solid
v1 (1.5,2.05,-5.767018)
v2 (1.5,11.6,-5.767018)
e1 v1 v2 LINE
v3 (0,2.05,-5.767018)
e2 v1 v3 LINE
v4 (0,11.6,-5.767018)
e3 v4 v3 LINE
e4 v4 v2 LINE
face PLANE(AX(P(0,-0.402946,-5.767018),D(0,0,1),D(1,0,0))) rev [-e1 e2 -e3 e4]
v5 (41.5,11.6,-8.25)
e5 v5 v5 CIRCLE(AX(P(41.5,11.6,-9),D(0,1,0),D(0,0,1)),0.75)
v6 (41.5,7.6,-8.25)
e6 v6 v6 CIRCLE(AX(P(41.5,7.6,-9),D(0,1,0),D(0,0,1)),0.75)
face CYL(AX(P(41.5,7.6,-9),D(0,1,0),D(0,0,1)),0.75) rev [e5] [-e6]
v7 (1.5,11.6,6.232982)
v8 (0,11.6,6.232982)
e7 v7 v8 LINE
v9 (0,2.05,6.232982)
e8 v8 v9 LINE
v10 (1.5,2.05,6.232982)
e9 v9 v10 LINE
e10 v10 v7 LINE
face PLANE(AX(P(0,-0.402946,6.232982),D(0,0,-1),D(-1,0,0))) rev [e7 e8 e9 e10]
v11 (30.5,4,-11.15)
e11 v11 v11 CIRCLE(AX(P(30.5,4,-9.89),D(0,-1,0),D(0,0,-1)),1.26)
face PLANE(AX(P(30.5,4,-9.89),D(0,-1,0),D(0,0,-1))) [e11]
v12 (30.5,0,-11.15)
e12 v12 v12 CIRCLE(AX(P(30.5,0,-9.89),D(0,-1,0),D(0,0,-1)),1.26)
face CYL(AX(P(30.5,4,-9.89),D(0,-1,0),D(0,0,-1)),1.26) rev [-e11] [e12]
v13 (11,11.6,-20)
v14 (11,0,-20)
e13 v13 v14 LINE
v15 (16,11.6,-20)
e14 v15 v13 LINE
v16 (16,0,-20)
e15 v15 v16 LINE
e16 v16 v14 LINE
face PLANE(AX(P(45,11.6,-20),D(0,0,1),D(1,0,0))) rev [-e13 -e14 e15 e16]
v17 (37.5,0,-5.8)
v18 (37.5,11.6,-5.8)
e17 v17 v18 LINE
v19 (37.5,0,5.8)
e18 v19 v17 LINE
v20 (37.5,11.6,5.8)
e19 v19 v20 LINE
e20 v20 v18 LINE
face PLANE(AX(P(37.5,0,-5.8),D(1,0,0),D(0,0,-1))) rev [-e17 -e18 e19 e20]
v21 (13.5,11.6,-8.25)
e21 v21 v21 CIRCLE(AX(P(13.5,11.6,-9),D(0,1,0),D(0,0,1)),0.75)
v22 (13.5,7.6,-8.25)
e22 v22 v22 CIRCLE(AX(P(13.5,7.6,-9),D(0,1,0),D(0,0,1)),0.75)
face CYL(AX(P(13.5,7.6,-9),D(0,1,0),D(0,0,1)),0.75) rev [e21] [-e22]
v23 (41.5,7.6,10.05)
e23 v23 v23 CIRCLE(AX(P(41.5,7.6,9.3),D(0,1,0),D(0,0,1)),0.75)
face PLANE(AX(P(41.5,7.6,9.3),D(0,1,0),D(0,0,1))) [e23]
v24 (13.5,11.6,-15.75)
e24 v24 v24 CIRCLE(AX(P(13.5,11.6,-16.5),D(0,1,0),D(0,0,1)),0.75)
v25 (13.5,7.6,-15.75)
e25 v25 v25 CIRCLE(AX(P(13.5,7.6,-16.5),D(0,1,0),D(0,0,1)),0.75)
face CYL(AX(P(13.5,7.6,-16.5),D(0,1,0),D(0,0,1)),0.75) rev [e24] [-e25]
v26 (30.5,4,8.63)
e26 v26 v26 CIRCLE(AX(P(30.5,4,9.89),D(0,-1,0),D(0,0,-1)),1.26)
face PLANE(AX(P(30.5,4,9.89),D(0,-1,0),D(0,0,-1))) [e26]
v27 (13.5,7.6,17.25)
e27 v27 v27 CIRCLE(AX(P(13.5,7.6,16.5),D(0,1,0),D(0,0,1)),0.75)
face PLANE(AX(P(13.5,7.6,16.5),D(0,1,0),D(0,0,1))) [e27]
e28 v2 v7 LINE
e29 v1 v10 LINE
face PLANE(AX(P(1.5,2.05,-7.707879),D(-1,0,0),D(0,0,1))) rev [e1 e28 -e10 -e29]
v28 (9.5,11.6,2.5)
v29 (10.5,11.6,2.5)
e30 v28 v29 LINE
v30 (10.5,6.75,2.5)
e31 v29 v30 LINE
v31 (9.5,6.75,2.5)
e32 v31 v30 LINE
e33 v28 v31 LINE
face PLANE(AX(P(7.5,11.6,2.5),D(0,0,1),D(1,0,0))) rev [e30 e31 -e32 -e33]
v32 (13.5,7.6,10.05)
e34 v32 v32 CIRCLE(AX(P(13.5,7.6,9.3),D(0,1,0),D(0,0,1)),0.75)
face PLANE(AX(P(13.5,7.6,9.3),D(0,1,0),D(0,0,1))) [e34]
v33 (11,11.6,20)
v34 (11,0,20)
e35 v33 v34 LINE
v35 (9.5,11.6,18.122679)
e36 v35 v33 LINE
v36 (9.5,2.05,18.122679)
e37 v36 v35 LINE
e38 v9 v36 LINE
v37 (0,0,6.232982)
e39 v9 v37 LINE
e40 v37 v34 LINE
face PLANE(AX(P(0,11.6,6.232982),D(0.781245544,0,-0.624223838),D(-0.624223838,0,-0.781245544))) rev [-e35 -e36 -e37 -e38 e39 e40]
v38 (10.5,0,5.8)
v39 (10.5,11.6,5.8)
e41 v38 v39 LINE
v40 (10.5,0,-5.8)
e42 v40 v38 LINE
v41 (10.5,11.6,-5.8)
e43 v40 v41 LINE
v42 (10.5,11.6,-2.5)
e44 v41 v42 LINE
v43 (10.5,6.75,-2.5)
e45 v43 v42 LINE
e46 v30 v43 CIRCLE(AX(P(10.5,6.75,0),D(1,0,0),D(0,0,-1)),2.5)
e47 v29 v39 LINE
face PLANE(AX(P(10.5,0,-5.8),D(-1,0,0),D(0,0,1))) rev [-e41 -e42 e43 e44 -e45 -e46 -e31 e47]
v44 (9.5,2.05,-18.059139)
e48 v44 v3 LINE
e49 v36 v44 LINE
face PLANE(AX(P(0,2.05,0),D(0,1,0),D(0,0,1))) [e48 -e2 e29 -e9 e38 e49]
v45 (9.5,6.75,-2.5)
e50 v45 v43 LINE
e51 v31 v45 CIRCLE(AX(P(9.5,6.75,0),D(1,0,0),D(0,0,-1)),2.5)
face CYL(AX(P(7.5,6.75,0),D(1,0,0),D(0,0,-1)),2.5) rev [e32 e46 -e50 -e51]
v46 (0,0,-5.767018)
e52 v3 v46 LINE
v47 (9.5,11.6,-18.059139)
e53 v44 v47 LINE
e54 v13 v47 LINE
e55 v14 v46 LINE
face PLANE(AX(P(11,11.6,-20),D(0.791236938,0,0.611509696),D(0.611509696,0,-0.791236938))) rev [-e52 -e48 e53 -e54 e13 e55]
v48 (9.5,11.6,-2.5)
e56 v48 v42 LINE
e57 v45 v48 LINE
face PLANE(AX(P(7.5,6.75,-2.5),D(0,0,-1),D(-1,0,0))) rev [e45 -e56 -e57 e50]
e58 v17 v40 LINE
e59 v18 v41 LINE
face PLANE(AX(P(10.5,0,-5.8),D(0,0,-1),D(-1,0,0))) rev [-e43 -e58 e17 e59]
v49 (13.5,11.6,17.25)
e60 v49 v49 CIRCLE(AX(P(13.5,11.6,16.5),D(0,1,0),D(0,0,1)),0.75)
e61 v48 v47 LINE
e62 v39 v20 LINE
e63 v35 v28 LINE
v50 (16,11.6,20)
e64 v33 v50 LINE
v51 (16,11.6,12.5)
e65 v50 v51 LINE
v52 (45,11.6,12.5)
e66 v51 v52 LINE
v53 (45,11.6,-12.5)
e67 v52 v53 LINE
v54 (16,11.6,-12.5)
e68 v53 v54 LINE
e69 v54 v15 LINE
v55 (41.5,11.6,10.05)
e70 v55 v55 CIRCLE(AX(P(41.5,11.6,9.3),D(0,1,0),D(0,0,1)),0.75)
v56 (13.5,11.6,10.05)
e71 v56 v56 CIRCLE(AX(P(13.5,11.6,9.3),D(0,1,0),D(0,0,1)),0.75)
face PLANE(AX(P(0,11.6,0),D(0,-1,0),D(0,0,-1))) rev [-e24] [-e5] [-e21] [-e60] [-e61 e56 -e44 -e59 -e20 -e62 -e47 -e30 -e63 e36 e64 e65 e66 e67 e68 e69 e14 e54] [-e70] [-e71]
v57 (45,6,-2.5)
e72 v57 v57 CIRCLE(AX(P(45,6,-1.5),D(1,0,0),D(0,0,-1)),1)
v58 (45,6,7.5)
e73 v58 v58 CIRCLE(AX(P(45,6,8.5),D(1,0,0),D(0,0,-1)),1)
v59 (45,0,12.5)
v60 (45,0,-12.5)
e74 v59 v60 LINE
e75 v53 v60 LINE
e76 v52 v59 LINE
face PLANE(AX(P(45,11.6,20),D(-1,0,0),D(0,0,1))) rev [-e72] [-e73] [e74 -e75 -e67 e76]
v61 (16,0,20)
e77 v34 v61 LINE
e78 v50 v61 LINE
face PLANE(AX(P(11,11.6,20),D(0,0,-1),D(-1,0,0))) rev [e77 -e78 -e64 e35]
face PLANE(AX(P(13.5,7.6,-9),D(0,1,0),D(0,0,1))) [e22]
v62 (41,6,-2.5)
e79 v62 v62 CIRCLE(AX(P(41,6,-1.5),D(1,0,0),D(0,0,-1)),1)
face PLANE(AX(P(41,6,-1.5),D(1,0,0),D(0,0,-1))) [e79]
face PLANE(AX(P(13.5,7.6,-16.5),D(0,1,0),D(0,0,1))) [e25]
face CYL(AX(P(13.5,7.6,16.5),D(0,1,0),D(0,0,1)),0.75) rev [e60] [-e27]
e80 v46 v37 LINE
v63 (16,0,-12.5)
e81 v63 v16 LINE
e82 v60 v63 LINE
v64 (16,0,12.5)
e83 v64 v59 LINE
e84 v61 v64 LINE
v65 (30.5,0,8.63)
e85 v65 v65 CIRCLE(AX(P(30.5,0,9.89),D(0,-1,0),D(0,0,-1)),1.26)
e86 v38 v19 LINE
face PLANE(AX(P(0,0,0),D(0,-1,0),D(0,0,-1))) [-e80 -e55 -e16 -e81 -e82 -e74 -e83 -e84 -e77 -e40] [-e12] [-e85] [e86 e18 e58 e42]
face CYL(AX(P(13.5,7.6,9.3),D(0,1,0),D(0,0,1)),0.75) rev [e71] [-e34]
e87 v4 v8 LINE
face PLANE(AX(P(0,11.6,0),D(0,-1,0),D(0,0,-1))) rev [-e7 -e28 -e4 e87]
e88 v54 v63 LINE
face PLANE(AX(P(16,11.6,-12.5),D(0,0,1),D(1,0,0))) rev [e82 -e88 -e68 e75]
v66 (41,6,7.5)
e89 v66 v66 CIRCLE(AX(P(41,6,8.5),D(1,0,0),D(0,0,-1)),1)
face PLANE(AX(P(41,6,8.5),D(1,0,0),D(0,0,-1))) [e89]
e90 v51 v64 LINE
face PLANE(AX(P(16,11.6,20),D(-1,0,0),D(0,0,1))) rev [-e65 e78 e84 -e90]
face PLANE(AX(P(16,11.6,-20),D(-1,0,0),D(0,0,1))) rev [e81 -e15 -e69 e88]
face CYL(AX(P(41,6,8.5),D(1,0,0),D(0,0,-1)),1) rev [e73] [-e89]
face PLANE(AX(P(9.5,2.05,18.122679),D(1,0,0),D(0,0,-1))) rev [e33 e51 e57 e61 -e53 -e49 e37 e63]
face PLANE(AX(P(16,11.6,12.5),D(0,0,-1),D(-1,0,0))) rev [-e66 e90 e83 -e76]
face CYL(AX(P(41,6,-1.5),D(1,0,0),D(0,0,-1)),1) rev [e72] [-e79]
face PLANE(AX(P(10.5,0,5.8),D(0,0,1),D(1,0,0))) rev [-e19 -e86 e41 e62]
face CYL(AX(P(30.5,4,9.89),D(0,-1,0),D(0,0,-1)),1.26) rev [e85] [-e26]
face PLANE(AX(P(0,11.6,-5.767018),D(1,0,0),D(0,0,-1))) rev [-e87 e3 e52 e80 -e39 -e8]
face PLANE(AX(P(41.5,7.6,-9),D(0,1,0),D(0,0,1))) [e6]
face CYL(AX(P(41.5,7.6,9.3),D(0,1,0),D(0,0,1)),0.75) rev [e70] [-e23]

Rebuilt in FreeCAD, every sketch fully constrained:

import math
import FreeCAD as App
import Part
import Sketcher
from FreeCAD import Vector

doc = App.newDocument("Part")
body = doc.addObject("PartDesign::Body", "Body")

# Sketch on XZ plane
sketch1 = body.newObject("Sketcher::SketchObject", "Sketch")
sketch1.AttachmentSupport = (doc.getObject("XZ_Plane"), [""])
sketch1.MapMode = "FlatFace"
sketch1.addGeometry(Part.LineSegment(Vector(0, -5.767018, 0), Vector(0, 6.232982, 0)), False)
sketch1.addGeometry(Part.LineSegment(Vector(0, 6.232982, 0), Vector(11, 20, 0)), False)
sketch1.addGeometry(Part.LineSegment(Vector(11, 20, 0), Vector(45, 20, 0)), False)
sketch1.addGeometry(Part.LineSegment(Vector(45, 20, 0), Vector(45, -20, 0)), False)
sketch1.addGeometry(Part.LineSegment(Vector(45, -20, 0), Vector(11, -20, 0)), False)
sketch1.addGeometry(Part.LineSegment(Vector(11, -20, 0), Vector(0, -5.767018, 0)), False)
sketch1.addConstraint(Sketcher.Constraint("Coincident", 0, 2, 1, 1))
sketch1.addConstraint(Sketcher.Constraint("Coincident", 1, 2, 2, 1))
sketch1.addConstraint(Sketcher.Constraint("Coincident", 2, 2, 3, 1))
sketch1.addConstraint(Sketcher.Constraint("Coincident", 3, 2, 4, 1))
sketch1.addConstraint(Sketcher.Constraint("Coincident", 4, 2, 5, 1))
sketch1.addConstraint(Sketcher.Constraint("Coincident", 5, 2, 0, 1))
sketch1.addConstraint(Sketcher.Constraint("Vertical", 0))
sketch1.addConstraint(Sketcher.Constraint("Horizontal", 2))
sketch1.addConstraint(Sketcher.Constraint("Vertical", 3))
sketch1.addConstraint(Sketcher.Constraint("Horizontal", 4))
sketch1.addConstraint(Sketcher.Constraint("Symmetric", 1, 2, 4, 2, -1))
sketch1.addConstraint(Sketcher.Constraint("PointOnObject", 0, 2, -2))
sketch1.addConstraint(Sketcher.Constraint("DistanceX", 2, 1, 2, 2, 34.0))
sketch1.addConstraint(Sketcher.Constraint("DistanceY", 0, 1, 0, 2, 12.0))
sketch1.addConstraint(Sketcher.Constraint("DistanceY", 3, 2, 3, 1, 40.0))
sketch1.addConstraint(Sketcher.Constraint("DistanceX", -1, 1, 1, 2, 11.0))
sketch1.addConstraint(Sketcher.Constraint("DistanceY", -1, 1, 0, 2, 6.232982))
pad1 = body.newObject("PartDesign::Pad", "Pad")
pad1.Profile = sketch1
pad1.Length = 11.6
pad1.Reversed = True

# Sketch on XZ plane
sketch2 = body.newObject("Sketcher::SketchObject", "Sketch001")
sketch2.AttachmentSupport = (doc.getObject("XZ_Plane"), [""])
sketch2.MapMode = "FlatFace"
sketch2.AttachmentOffset = App.Placement(Vector(0, 0, -11.6), App.Rotation())
sketch2.addGeometry(Part.LineSegment(Vector(1.5, -7.707879, 0), Vector(1.5, 8.110302, 0)), False)
sketch2.addGeometry(Part.LineSegment(Vector(1.5, 8.110302, 0), Vector(9.5, 18.122679, 0)), False)
sketch2.addGeometry(Part.LineSegment(Vector(9.5, 18.122679, 0), Vector(9.5, -18.059139, 0)), False)
sketch2.addGeometry(Part.LineSegment(Vector(9.5, -18.059139, 0), Vector(1.5, -7.707879, 0)), False)
sketch2.addConstraint(Sketcher.Constraint("Coincident", 0, 2, 1, 1))
sketch2.addConstraint(Sketcher.Constraint("Coincident", 1, 2, 2, 1))
sketch2.addConstraint(Sketcher.Constraint("Coincident", 2, 2, 3, 1))
sketch2.addConstraint(Sketcher.Constraint("Coincident", 3, 2, 0, 1))
sketch2.addConstraint(Sketcher.Constraint("Vertical", 0))
sketch2.addConstraint(Sketcher.Constraint("Vertical", 2))
sketch2.addConstraint(Sketcher.Constraint("DistanceX", 0, 2, 1, 2, 8.0))
sketch2.addConstraint(Sketcher.Constraint("DistanceX", -1, 1, 0, 2, 1.5))
sketch2.addConstraint(Sketcher.Constraint("DistanceY", 0, 1, 0, 2, 15.818182))
sketch2.addConstraint(Sketcher.Constraint("DistanceY", 2, 2, 2, 1, 36.181818))
sketch2.addConstraint(Sketcher.Constraint("DistanceY", -1, 1, 1, 2, 18.122679))
sketch2.addConstraint(Sketcher.Constraint("DistanceY", 3, 2, -1, 1, 7.707879))
pocket1 = body.newObject("PartDesign::Pocket", "Pocket")
pocket1.Profile = sketch2
pocket1.Length = 9.55
pocket1.Reversed = True

# Sketch on XZ plane
sketch3 = body.newObject("Sketcher::SketchObject", "Sketch002")
sketch3.AttachmentSupport = (doc.getObject("XZ_Plane"), [""])
sketch3.MapMode = "FlatFace"
sketch3.AttachmentOffset = App.Placement(Vector(0, 0, -11.6), App.Rotation())
sketch3.addGeometry(Part.LineSegment(Vector(10.5, -5.8, 0), Vector(10.5, 5.8, 0)), False)
sketch3.addGeometry(Part.LineSegment(Vector(10.5, 5.8, 0), Vector(37.5, 5.8, 0)), False)
sketch3.addGeometry(Part.LineSegment(Vector(37.5, 5.8, 0), Vector(37.5, -5.8, 0)), False)
sketch3.addGeometry(Part.LineSegment(Vector(37.5, -5.8, 0), Vector(10.5, -5.8, 0)), False)
sketch3.addConstraint(Sketcher.Constraint("Coincident", 0, 2, 1, 1))
sketch3.addConstraint(Sketcher.Constraint("Coincident", 1, 2, 2, 1))
sketch3.addConstraint(Sketcher.Constraint("Coincident", 2, 2, 3, 1))
sketch3.addConstraint(Sketcher.Constraint("Coincident", 3, 2, 0, 1))
sketch3.addConstraint(Sketcher.Constraint("Vertical", 0))
sketch3.addConstraint(Sketcher.Constraint("Horizontal", 1))
sketch3.addConstraint(Sketcher.Constraint("Vertical", 2))
sketch3.addConstraint(Sketcher.Constraint("Horizontal", 3))
sketch3.addConstraint(Sketcher.Constraint("DistanceX", 1, 1, 1, 2, 27.0))
sketch3.addConstraint(Sketcher.Constraint("DistanceY", 0, 1, 0, 2, 11.6))
sketch3.addConstraint(Sketcher.Constraint("DistanceX", -1, 1, 0, 2, 10.5))
sketch3.addConstraint(Sketcher.Constraint("DistanceY", -1, 1, 0, 2, 5.8))
pocket2 = body.newObject("PartDesign::Pocket", "Pocket001")
pocket2.Profile = sketch3
pocket2.Type = "ThroughAll"
pocket2.Reversed = True

# Sketch on YZ plane
sketch4 = body.newObject("Sketcher::SketchObject", "Sketch003")
sketch4.AttachmentSupport = (doc.getObject("YZ_Plane"), [""])
sketch4.MapMode = "FlatFace"
sketch4.AttachmentOffset = App.Placement(Vector(0, 0, 10.5), App.Rotation())
sketch4.addGeometry(Part.LineSegment(Vector(6.75, -2.5, 0), Vector(11.6, -2.5, 0)), False)
sketch4.addGeometry(Part.LineSegment(Vector(11.6, -2.5, 0), Vector(11.6, 2.5, 0)), False)
sketch4.addGeometry(Part.LineSegment(Vector(11.6, 2.5, 0), Vector(6.75, 2.5, 0)), False)
sketch4.addGeometry(Part.ArcOfCircle(Part.Circle(Vector(6.75, 0, 0), Vector(0, 0, 1), 2.5), math.radians(90), math.radians(270)), False)
sketch4.addConstraint(Sketcher.Constraint("Coincident", 0, 2, 1, 1))
sketch4.addConstraint(Sketcher.Constraint("Coincident", 1, 2, 2, 1))
sketch4.addConstraint(Sketcher.Constraint("Tangent", 2, 2, 3, 1))
sketch4.addConstraint(Sketcher.Constraint("Tangent", 3, 2, 0, 1))
sketch4.addConstraint(Sketcher.Constraint("Horizontal", 0))
sketch4.addConstraint(Sketcher.Constraint("Vertical", 1))
sketch4.addConstraint(Sketcher.Constraint("Horizontal", 2))
sketch4.addConstraint(Sketcher.Constraint("PointOnObject", 3, 3, -1))
sketch4.addConstraint(Sketcher.Constraint("Radius", 3, 2.5))
sketch4.addConstraint(Sketcher.Constraint("DistanceX", 0, 1, 0, 2, 4.85))
sketch4.addConstraint(Sketcher.Constraint("DistanceX", -1, 1, 0, 2, 11.6))
pocket3 = body.newObject("PartDesign::Pocket", "Pocket002")
pocket3.Profile = sketch4
pocket3.Length = 3

# Sketch on XZ plane
sketch5 = body.newObject("Sketcher::SketchObject", "Sketch004")
sketch5.AttachmentSupport = (doc.getObject("XZ_Plane"), [""])
sketch5.MapMode = "FlatFace"
sketch5.AttachmentOffset = App.Placement(Vector(0, 0, -11.6), App.Rotation())
sketch5.addGeometry(Part.LineSegment(Vector(1.5, -7.707879, 0), Vector(0, -5.767018, 0)), False)
sketch5.addGeometry(Part.LineSegment(Vector(0, -5.767018, 0), Vector(1.5, -5.767018, 0)), False)
sketch5.addGeometry(Part.LineSegment(Vector(1.5, -5.767018, 0), Vector(1.5, -7.707879, 0)), False)
sketch5.addGeometry(Part.LineSegment(Vector(1.5, 6.232982, 0), Vector(0, 6.232982, 0)), False)
sketch5.addGeometry(Part.LineSegment(Vector(0, 6.232982, 0), Vector(1.5, 8.110302, 0)), False)
sketch5.addGeometry(Part.LineSegment(Vector(1.5, 8.110302, 0), Vector(1.5, 6.232982, 0)), False)
sketch5.addConstraint(Sketcher.Constraint("Coincident", 0, 2, 1, 1))
sketch5.addConstraint(Sketcher.Constraint("Coincident", 1, 2, 2, 1))
sketch5.addConstraint(Sketcher.Constraint("Coincident", 2, 2, 0, 1))
sketch5.addConstraint(Sketcher.Constraint("Coincident", 3, 2, 4, 1))
sketch5.addConstraint(Sketcher.Constraint("Coincident", 4, 2, 5, 1))
sketch5.addConstraint(Sketcher.Constraint("Coincident", 5, 2, 3, 1))
sketch5.addConstraint(Sketcher.Constraint("Horizontal", 1))
sketch5.addConstraint(Sketcher.Constraint("Vertical", 2))
sketch5.addConstraint(Sketcher.Constraint("Horizontal", 3))
sketch5.addConstraint(Sketcher.Constraint("Vertical", 5))
sketch5.addConstraint(Sketcher.Constraint("PointOnObject", 0, 2, -2))
sketch5.addConstraint(Sketcher.Constraint("PointOnObject", 3, 2, -2))
sketch5.addConstraint(Sketcher.Constraint("Vertical", 2, 2, 4, 2))
sketch5.addConstraint(Sketcher.Constraint("DistanceX", 1, 1, 1, 2, 1.5))
sketch5.addConstraint(Sketcher.Constraint("DistanceY", 0, 2, 3, 2, 12.0))
sketch5.addConstraint(Sketcher.Constraint("DistanceY", 2, 2, 2, 1, 1.940861))
sketch5.addConstraint(Sketcher.Constraint("DistanceY", 5, 2, 5, 1, 1.877321))
sketch5.addConstraint(Sketcher.Constraint("DistanceY", 0, 2, -1, 1, 5.767018))
pocket4 = body.newObject("PartDesign::Pocket", "Pocket003")
pocket4.Profile = sketch5
pocket4.Length = 9.55
pocket4.Reversed = True

# Sketch on XZ plane
sketch6 = body.newObject("Sketcher::SketchObject", "Sketch005")
sketch6.AttachmentSupport = (doc.getObject("XZ_Plane"), [""])
sketch6.MapMode = "FlatFace"
sketch6.addGeometry(Part.Circle(Vector(30.5, 9.89, 0), Vector(0, 0, 1), 1.26), False)
sketch6.addGeometry(Part.Circle(Vector(30.5, -9.89, 0), Vector(0, 0, 1), 1.26), False)
sketch6.addConstraint(Sketcher.Constraint("Equal", 0, 1))
sketch6.addConstraint(Sketcher.Constraint("Symmetric", 0, 3, 1, 3, -1))
sketch6.addConstraint(Sketcher.Constraint("Diameter", 0, 2.52))
sketch6.addConstraint(Sketcher.Constraint("DistanceX", -1, 1, 0, 3, 30.5))
sketch6.addConstraint(Sketcher.Constraint("DistanceY", -1, 1, 0, 3, 9.89))
pocket5 = body.newObject("PartDesign::Pocket", "Pocket004")
pocket5.Profile = sketch6
pocket5.Length = 4

# Sketch on XZ plane
sketch7 = body.newObject("Sketcher::SketchObject", "Sketch006")
sketch7.AttachmentSupport = (doc.getObject("XZ_Plane"), [""])
sketch7.MapMode = "FlatFace"
sketch7.addGeometry(Part.LineSegment(Vector(16, 20, 0), Vector(16, 12.5, 0)), False)
sketch7.addGeometry(Part.LineSegment(Vector(16, 12.5, 0), Vector(45, 12.5, 0)), False)
sketch7.addGeometry(Part.LineSegment(Vector(45, 12.5, 0), Vector(45, 20, 0)), False)
sketch7.addGeometry(Part.LineSegment(Vector(45, 20, 0), Vector(16, 20, 0)), False)
sketch7.addGeometry(Part.LineSegment(Vector(16, -12.5, 0), Vector(16, -20, 0)), False)
sketch7.addGeometry(Part.LineSegment(Vector(16, -20, 0), Vector(45, -20, 0)), False)
sketch7.addGeometry(Part.LineSegment(Vector(45, -20, 0), Vector(45, -12.5, 0)), False)
sketch7.addGeometry(Part.LineSegment(Vector(45, -12.5, 0), Vector(16, -12.5, 0)), False)
sketch7.addConstraint(Sketcher.Constraint("Coincident", 0, 2, 1, 1))
sketch7.addConstraint(Sketcher.Constraint("Coincident", 1, 2, 2, 1))
sketch7.addConstraint(Sketcher.Constraint("Coincident", 2, 2, 3, 1))
sketch7.addConstraint(Sketcher.Constraint("Coincident", 3, 2, 0, 1))
sketch7.addConstraint(Sketcher.Constraint("Coincident", 4, 2, 5, 1))
sketch7.addConstraint(Sketcher.Constraint("Coincident", 5, 2, 6, 1))
sketch7.addConstraint(Sketcher.Constraint("Coincident", 6, 2, 7, 1))
sketch7.addConstraint(Sketcher.Constraint("Coincident", 7, 2, 4, 1))
sketch7.addConstraint(Sketcher.Constraint("Vertical", 0))
sketch7.addConstraint(Sketcher.Constraint("Horizontal", 1))
sketch7.addConstraint(Sketcher.Constraint("Vertical", 2))
sketch7.addConstraint(Sketcher.Constraint("Horizontal", 3))
sketch7.addConstraint(Sketcher.Constraint("Vertical", 4))
sketch7.addConstraint(Sketcher.Constraint("Horizontal", 5))
sketch7.addConstraint(Sketcher.Constraint("Vertical", 6))
sketch7.addConstraint(Sketcher.Constraint("Horizontal", 7))
sketch7.addConstraint(Sketcher.Constraint("Symmetric", 3, 2, 4, 2, -1))
sketch7.addConstraint(Sketcher.Constraint("Symmetric", 1, 2, 6, 2, -1))
sketch7.addConstraint(Sketcher.Constraint("DistanceX", 1, 1, 1, 2, 29.0))
sketch7.addConstraint(Sketcher.Constraint("DistanceY", 0, 2, 0, 1, 7.5))
sketch7.addConstraint(Sketcher.Constraint("DistanceX", -1, 1, 0, 2, 16.0))
sketch7.addConstraint(Sketcher.Constraint("DistanceY", -1, 1, 2, 2, 20.0))
pocket6 = body.newObject("PartDesign::Pocket", "Pocket005")
pocket6.Profile = sketch7
pocket6.Type = "ThroughAll"

# Sketch on XZ plane
sketch8 = body.newObject("Sketcher::SketchObject", "Sketch007")
sketch8.AttachmentSupport = (doc.getObject("XZ_Plane"), [""])
sketch8.MapMode = "FlatFace"
sketch8.AttachmentOffset = App.Placement(Vector(0, 0, -11.6), App.Rotation())
sketch8.addGeometry(Part.Circle(Vector(13.5, -16.5, 0), Vector(0, 0, 1), 0.75), False)
sketch8.addGeometry(Part.Circle(Vector(13.5, -9, 0), Vector(0, 0, 1), 0.75), False)
sketch8.addGeometry(Part.Circle(Vector(41.5, -9, 0), Vector(0, 0, 1), 0.75), False)
sketch8.addGeometry(Part.Circle(Vector(41.5, 9.3, 0), Vector(0, 0, 1), 0.75), False)
sketch8.addGeometry(Part.Circle(Vector(13.5, 9.3, 0), Vector(0, 0, 1), 0.75), False)
sketch8.addGeometry(Part.Circle(Vector(13.5, 16.5, 0), Vector(0, 0, 1), 0.75), False)
sketch8.addConstraint(Sketcher.Constraint("Equal", 0, 1))
sketch8.addConstraint(Sketcher.Constraint("Equal", 1, 2))
sketch8.addConstraint(Sketcher.Constraint("Equal", 2, 3))
sketch8.addConstraint(Sketcher.Constraint("Equal", 3, 4))
sketch8.addConstraint(Sketcher.Constraint("Equal", 4, 5))
sketch8.addConstraint(Sketcher.Constraint("Symmetric", 0, 3, 5, 3, -1))
sketch8.addConstraint(Sketcher.Constraint("Horizontal", 1, 3, 2, 3))
sketch8.addConstraint(Sketcher.Constraint("Horizontal", 3, 3, 4, 3))
sketch8.addConstraint(Sketcher.Constraint("Vertical", 0, 3, 1, 3))
sketch8.addConstraint(Sketcher.Constraint("Vertical", 2, 3, 3, 3))
sketch8.addConstraint(Sketcher.Constraint("Vertical", 1, 3, 4, 3))
sketch8.addConstraint(Sketcher.Constraint("Diameter", 0, 1.5))
sketch8.addConstraint(Sketcher.Constraint("DistanceY", 1, 3, -1, 1, 9.0))
sketch8.addConstraint(Sketcher.Constraint("DistanceX", 1, 3, 2, 3, 28.0))
sketch8.addConstraint(Sketcher.Constraint("DistanceY", 0, 3, 5, 3, 33.0))
sketch8.addConstraint(Sketcher.Constraint("DistanceX", -1, 1, 0, 3, 13.5))
sketch8.addConstraint(Sketcher.Constraint("DistanceY", -1, 1, 3, 3, 9.3))
pocket7 = body.newObject("PartDesign::Pocket", "Pocket006")
pocket7.Profile = sketch8
pocket7.Length = 4
pocket7.Reversed = True

# Sketch on YZ plane
sketch9 = body.newObject("Sketcher::SketchObject", "Sketch008")
sketch9.AttachmentSupport = (doc.getObject("YZ_Plane"), [""])
sketch9.MapMode = "FlatFace"
sketch9.AttachmentOffset = App.Placement(Vector(0, 0, 45), App.Rotation())
sketch9.addGeometry(Part.Circle(Vector(6, 8.5, 0), Vector(0, 0, 1), 1), False)
sketch9.addGeometry(Part.Circle(Vector(6, -1.5, 0), Vector(0, 0, 1), 1), False)
sketch9.addConstraint(Sketcher.Constraint("Equal", 0, 1))
sketch9.addConstraint(Sketcher.Constraint("Vertical", 0, 3, 1, 3))
sketch9.addConstraint(Sketcher.Constraint("Diameter", 0, 2.0))
sketch9.addConstraint(Sketcher.Constraint("DistanceX", -1, 1, 0, 3, 6.0))
sketch9.addConstraint(Sketcher.Constraint("DistanceY", 1, 3, 0, 3, 10.0))
sketch9.addConstraint(Sketcher.Constraint("DistanceY", -1, 1, 0, 3, 8.5))
pocket8 = body.newObject("PartDesign::Pocket", "Pocket007")
pocket8.Profile = sketch9
pocket8.Length = 4

doc.recompute()
